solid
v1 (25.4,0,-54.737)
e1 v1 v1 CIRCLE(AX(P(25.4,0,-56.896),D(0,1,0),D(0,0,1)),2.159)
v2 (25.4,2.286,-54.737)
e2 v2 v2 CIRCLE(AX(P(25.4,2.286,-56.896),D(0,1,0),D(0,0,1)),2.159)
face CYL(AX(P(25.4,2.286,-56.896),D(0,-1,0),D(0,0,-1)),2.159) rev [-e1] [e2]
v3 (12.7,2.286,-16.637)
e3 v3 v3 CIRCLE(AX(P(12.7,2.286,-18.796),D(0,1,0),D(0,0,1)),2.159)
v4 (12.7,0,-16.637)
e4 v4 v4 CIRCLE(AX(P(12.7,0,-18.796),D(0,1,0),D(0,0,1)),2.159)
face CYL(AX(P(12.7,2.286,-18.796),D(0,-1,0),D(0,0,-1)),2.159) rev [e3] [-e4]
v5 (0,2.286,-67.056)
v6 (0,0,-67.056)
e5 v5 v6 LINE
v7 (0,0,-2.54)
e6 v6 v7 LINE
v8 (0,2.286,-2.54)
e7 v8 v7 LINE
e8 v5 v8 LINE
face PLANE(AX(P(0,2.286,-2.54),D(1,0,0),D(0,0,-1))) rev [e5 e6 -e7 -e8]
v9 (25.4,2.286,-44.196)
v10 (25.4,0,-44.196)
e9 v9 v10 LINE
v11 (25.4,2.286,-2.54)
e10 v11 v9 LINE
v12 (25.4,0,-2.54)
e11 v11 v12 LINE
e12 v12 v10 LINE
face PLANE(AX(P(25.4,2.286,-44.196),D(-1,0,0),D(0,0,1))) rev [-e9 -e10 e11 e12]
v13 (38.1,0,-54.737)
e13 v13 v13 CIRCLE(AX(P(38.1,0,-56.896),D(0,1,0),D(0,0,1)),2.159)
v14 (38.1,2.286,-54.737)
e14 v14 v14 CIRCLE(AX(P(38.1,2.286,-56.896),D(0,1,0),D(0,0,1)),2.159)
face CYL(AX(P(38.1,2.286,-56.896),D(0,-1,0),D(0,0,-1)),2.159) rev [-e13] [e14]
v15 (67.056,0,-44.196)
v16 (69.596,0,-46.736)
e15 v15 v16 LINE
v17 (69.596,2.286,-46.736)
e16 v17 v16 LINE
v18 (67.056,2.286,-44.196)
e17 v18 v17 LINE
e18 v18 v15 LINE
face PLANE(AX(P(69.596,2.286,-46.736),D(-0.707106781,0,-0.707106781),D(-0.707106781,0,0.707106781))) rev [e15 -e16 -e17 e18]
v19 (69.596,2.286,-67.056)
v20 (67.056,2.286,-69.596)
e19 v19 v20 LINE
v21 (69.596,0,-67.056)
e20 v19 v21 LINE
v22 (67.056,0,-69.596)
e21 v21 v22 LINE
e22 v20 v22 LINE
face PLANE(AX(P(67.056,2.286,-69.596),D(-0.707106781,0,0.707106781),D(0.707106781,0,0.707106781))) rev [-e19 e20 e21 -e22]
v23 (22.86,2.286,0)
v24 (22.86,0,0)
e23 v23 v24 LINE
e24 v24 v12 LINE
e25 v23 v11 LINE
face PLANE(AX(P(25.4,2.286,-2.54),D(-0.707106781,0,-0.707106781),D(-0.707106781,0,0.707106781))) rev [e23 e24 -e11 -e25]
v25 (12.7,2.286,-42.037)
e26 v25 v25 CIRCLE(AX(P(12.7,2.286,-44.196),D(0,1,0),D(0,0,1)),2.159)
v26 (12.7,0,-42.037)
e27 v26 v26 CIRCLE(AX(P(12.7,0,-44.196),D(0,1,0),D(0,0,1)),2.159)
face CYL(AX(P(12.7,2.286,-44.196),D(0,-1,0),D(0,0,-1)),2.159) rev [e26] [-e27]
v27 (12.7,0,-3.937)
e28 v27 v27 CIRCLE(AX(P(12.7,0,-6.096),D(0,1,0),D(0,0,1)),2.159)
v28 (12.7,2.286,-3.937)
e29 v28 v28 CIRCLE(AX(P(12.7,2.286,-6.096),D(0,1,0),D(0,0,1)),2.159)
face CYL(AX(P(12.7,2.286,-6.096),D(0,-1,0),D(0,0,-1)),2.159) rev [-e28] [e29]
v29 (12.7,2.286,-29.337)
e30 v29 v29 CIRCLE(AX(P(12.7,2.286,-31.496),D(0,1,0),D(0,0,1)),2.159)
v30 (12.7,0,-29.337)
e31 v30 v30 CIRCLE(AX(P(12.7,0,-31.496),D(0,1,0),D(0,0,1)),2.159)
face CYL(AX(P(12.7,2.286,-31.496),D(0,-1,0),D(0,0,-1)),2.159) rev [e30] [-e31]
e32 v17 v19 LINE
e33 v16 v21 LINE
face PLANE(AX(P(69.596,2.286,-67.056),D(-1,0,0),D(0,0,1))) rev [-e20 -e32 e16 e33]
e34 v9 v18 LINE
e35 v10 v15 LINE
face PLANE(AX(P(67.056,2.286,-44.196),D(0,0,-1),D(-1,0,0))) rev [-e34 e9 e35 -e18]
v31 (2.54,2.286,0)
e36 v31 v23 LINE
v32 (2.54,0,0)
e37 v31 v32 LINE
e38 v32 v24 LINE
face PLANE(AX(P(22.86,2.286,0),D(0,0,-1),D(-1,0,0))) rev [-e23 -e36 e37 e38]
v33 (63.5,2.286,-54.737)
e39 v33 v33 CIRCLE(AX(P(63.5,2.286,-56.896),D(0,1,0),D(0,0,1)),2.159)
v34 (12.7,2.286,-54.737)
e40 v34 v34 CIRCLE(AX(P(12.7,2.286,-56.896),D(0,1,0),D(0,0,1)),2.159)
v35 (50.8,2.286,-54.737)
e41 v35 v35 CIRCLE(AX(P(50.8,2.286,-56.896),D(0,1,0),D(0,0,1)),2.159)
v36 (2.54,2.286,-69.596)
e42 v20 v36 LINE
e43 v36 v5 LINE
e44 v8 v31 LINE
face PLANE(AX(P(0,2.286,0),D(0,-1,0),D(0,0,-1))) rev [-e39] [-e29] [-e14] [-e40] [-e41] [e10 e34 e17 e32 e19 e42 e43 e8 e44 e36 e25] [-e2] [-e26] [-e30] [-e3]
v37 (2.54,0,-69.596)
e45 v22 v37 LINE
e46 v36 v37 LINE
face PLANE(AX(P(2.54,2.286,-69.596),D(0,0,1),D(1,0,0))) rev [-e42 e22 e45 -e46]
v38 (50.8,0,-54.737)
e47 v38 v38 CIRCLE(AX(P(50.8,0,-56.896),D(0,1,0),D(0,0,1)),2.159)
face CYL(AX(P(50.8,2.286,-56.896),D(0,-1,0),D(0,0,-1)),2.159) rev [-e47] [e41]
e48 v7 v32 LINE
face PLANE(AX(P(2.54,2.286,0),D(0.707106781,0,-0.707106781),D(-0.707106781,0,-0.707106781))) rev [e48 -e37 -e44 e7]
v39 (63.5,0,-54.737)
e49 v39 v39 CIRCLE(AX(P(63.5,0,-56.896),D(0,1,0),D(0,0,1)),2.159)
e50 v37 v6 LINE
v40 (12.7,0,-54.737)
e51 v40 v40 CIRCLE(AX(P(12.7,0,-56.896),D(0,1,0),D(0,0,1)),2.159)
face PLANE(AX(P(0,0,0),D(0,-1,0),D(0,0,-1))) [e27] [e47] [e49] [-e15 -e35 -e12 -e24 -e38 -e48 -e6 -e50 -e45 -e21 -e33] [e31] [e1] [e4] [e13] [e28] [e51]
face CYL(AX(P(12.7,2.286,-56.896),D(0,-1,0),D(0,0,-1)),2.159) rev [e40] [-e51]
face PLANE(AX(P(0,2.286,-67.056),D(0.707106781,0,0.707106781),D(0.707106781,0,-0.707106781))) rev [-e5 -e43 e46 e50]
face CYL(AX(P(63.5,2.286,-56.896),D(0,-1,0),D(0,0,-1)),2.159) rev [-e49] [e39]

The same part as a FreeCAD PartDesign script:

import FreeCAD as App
import Part
import Sketcher
from FreeCAD import Vector
Q = App.Units.Quantity


def add_polygon(sketch, points):
    """Adds a closed chain of lines whose ends are joined by coincident constraints."""
    first, n = sketch.GeometryCount, len(points)
    for a, b in zip(points, points[1:] + points[:1]):
        sketch.addGeometry(Part.LineSegment(App.Vector(*a, 0), App.Vector(*b, 0)), False)
    for i in range(n):
        sketch.addConstraint(Sketcher.Constraint("Coincident", first + i, 2, first + (i + 1) % n, 1))

doc = App.newDocument("Part")
body = doc.addObject("PartDesign::Body", "Body")

sketch1 = body.newObject("Sketcher::SketchObject", "Sketch")
sketch1.AttachmentSupport = (doc.getObject("XZ_Plane"), [""])
sketch1.MapMode = "FlatFace"
add_polygon(sketch1, [(0, -67.1), (0, -2.5), (2.5, 0), (22.9, 0), (25.4, -2.5), (25.4, -44.2), (67.1, -44.2), (69.6, -46.7), (69.6, -67.1), (67.1, -69.6), (2.5, -69.6)])
sketch1.addGeometry(Part.Circle(Vector(12.7, -6.1, 0), Vector(0, 0, 1), 2.2), False)
sketch1.addGeometry(Part.Circle(Vector(12.7, -18.8, 0), Vector(0, 0, 1), 2.2), False)
sketch1.addGeometry(Part.Circle(Vector(12.7, -31.5, 0), Vector(0, 0, 1), 2.2), False)
sketch1.addGeometry(Part.Circle(Vector(63.5, -56.9, 0), Vector(0, 0, 1), 2.2), False)
sketch1.addGeometry(Part.Circle(Vector(50.8, -56.9, 0), Vector(0, 0, 1), 2.2), False)
sketch1.addGeometry(Part.Circle(Vector(12.7, -44.2, 0), Vector(0, 0, 1), 2.2), False)
sketch1.addGeometry(Part.Circle(Vector(38.1, -56.9, 0), Vector(0, 0, 1), 2.2), False)
sketch1.addGeometry(Part.Circle(Vector(25.4, -56.9, 0), Vector(0, 0, 1), 2.2), False)
sketch1.addGeometry(Part.Circle(Vector(12.7, -56.9, 0), Vector(0, 0, 1), 2.2), False)
sketch1.addConstraint([
    Sketcher.Constraint("Vertical", 0),
    Sketcher.Constraint("Horizontal", 2),
    Sketcher.Constraint("Vertical", 4),
    Sketcher.Constraint("Horizontal", 5),
    Sketcher.Constraint("Vertical", 7),
    Sketcher.Constraint("Horizontal", 9),
    Sketcher.Constraint("Equal", 11, 12),
    Sketcher.Constraint("Equal", 12, 13),
    Sketcher.Constraint("Equal", 13, 14),
    Sketcher.Constraint("Equal", 14, 15),
    Sketcher.Constraint("Equal", 15, 16),
    Sketcher.Constraint("Equal", 16, 17),
    Sketcher.Constraint("Equal", 17, 18),
    Sketcher.Constraint("Equal", 18, 19),
    Sketcher.Constraint("PointOnObject", 0, 2, -2),
    Sketcher.Constraint("PointOnObject", 1, 2, -1),
    Sketcher.Constraint("Perpendicular", 1, 3),
    Sketcher.Constraint("Parallel", 3, 6),
    Sketcher.Constraint("Perpendicular", 6, 8),
    Sketcher.Constraint("Perpendicular", 8, 10),
    Sketcher.Constraint("Horizontal", 14, 3, 15, 3),
    Sketcher.Constraint("Horizontal", 15, 3, 17, 3),
    Sketcher.Constraint("Horizontal", 17, 3, 18, 3),
    Sketcher.Constraint("Horizontal", 18, 3, 19, 3),
    Sketcher.Constraint("Horizontal", 0, 2, 3, 2),
    Sketcher.Constraint("Horizontal", 16, 3, 4, 2),
    Sketcher.Constraint("Horizontal", 7, 2, 10, 2),
    Sketcher.Constraint("Vertical", 11, 3, 12, 3),
    Sketcher.Constraint("Vertical", 12, 3, 13, 3),
    Sketcher.Constraint("Vertical", 13, 3, 16, 3),
    Sketcher.Constraint("Vertical", 16, 3, 19, 3),
    Sketcher.Constraint("Vertical", 18, 3, 3, 2),
    Sketcher.Constraint("Vertical", 5, 2, 8, 2),
    Sketcher.Constraint("Vertical", 1, 2, 9, 2),
    Sketcher.Constraint("Equal", 9, 0),
    Sketcher.Constraint("Equal", 5, 4),
    Sketcher.Constraint("Equal", 2, 7),
    Sketcher.Constraint("Diameter", 11, Q("0.17 in")),
    Sketcher.Constraint("DistanceX", 2, 1, 2, 2, Q("0.8 in")),
    Sketcher.Constraint("DistanceX", -1, 1, 15, 3, Q("2 in")),
    Sketcher.Constraint("DistanceX", -1, 1, 18, 3, Q("1 in")),
    Sketcher.Constraint("DistanceY", 13, 3, 11, 3, Q("1 in")),
    Sketcher.Constraint("DistanceX", 13, 3, 14, 3, Q("2 in")),
    Sketcher.Constraint("DistanceY", 14, 3, 13, 3, Q("1 in")),
    Sketcher.Constraint("DistanceY", 16, 3, 12, 3, Q("1 in")),
    Sketcher.Constraint("DistanceX", 17, 3, 14, 3, Q("1 in")),
    Sketcher.Constraint("DistanceX", 5, 1, 5, 2, Q("1.64 in")),
    Sketcher.Constraint("DistanceX", -1, 1, 11, 3, Q("0.5 in")),
    Sketcher.Constraint("DistanceY", 12, 3, 11, 3, Q("0.5 in")),
])
pad1 = body.newObject("PartDesign::Pad", "Pad")
pad1.Profile = sketch1
pad1.Length = Q("0.09 in")
pad1.Reversed = True

doc.recompute()
